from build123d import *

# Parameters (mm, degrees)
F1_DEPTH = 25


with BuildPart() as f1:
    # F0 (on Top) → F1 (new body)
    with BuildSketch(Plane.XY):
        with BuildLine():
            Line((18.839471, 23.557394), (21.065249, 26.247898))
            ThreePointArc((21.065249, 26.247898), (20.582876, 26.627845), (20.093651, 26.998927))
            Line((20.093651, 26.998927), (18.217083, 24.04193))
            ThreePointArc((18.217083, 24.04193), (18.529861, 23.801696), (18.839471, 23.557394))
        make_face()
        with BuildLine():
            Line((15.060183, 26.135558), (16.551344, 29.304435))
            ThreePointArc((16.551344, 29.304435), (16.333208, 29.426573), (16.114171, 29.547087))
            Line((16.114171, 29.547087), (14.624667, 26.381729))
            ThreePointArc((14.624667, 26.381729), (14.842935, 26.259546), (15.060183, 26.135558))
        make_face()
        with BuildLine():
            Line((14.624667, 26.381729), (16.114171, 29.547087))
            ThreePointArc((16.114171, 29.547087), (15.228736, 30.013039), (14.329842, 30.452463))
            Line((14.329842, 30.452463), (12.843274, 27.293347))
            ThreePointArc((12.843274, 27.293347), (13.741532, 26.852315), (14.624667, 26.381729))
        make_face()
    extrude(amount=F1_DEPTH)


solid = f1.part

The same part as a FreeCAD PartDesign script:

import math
import FreeCAD as App
import Part
import Sketcher
from FreeCAD import Vector
Q = App.Units.Quantity

doc = App.newDocument("Part")
body = doc.addObject("PartDesign::Body", "Body")
body.AllowCompound = True

sketch1 = body.newObject("Sketcher::SketchObject", "Sketch")
sketch1.AttachmentSupport = (doc.getObject("XY_Plane"), [""])
sketch1.MapMode = "FlatFace"
sketch1.addGeometry(Part.LineSegment(Vector(18.839471, 23.557394, 0), Vector(21.065249, 26.247898, 0)), False)
sketch1.addGeometry(Part.ArcOfCircle(Part.Circle(Vector(0.002538, 0.003286, 0), Vector(0, 0, 1), 33.651411), math.radians(51.251084), math.radians(53.342069)), False)
sketch1.addGeometry(Part.LineSegment(Vector(20.093651, 26.998927, 0), Vector(18.217083, 24.04193, 0)), False)
sketch1.addGeometry(Part.ArcOfCircle(Part.Circle(Vector(-0.001712, -0.002166, 0), Vector(0, 0, 1), 30.16692), math.radians(51.349781), math.radians(52.847908)), False)
sketch1.addGeometry(Part.LineSegment(Vector(15.060183, 26.135558, 0), Vector(16.551344, 29.304435, 0)), False)
sketch1.addGeometry(Part.ArcOfCircle(Part.Circle(Vector(0.001096, 0.001889, 0), Vector(0, 0, 1), 33.653378), math.radians(60.541987), math.radians(61.393259)), False)
sketch1.addGeometry(Part.ArcOfCircle(Part.Circle(Vector(0.00067, 0.00133, 0), Vector(0, 0, 1), 33.654073), math.radians(61.393077), math.radians(64.800067)), False)
sketch1.addGeometry(Part.LineSegment(Vector(14.329842, 30.452463, 0), Vector(12.843274, 27.293347, 0)), False)
sketch1.addGeometry(Part.ArcOfCircle(Part.Circle(Vector(0.000403, 0.00077, 0), Vector(0, 0, 1), 30.16329), math.radians(60.99824), math.radians(64.800071)), False)
sketch1.addGeometry(Part.ArcOfCircle(Part.Circle(Vector(-0.007455, -0.013176, 0), Vector(0, 0, 1), 30.179298), math.radians(60.048242), math.radians(60.99803)), False)
sketch1.addConstraint(Sketcher.Constraint("Coincident", 0, 2, 1, 1))
sketch1.addConstraint(Sketcher.Constraint("Coincident", 1, 2, 2, 1))
sketch1.addConstraint(Sketcher.Constraint("Coincident", 2, 2, 3, 2))
sketch1.addConstraint(Sketcher.Constraint("Coincident", 3, 1, 0, 1))
sketch1.addConstraint(Sketcher.Constraint("Coincident", 4, 2, 5, 1))
sketch1.addConstraint(Sketcher.Constraint("Coincident", 5, 2, 6, 1))
sketch1.addConstraint(Sketcher.Constraint("Coincident", 6, 2, 7, 1))
sketch1.addConstraint(Sketcher.Constraint("Coincident", 7, 2, 8, 2))
sketch1.addConstraint(Sketcher.Constraint("Coincident", 8, 1, 9, 2))
sketch1.addConstraint(Sketcher.Constraint("Coincident", 9, 1, 4, 1))
sketch1.addConstraint(Sketcher.Constraint("Parallel", 4, 7))
sketch1.addConstraint(Sketcher.Constraint("Equal", 2, 4))
sketch1.addConstraint(Sketcher.Constraint("Angle", 0, Q("50.400006 deg")))
sketch1.addConstraint(Sketcher.Constraint("Angle", 2, Q("-122.400009 deg")))
sketch1.addConstraint(Sketcher.Constraint("Angle", 4, Q("64.79999 deg")))
sketch1.addConstraint(Sketcher.Constraint("Radius", 1, Q("33.651411 mm")))
sketch1.addConstraint(Sketcher.Constraint("Radius", 3, Q("30.16692 mm")))
sketch1.addConstraint(Sketcher.Constraint("Radius", 5, Q("33.653378 mm")))
sketch1.addConstraint(Sketcher.Constraint("Radius", 8, Q("30.16329 mm")))
sketch1.addConstraint(Sketcher.Constraint("Radius", 6, Q("33.654073 mm")))
sketch1.addConstraint(Sketcher.Constraint("Radius", 9, Q("30.179298 mm")))
sketch1.addConstraint(Sketcher.Constraint("DistanceY", 6, 3, 2, 2, Q("24.0406 mm")))
sketch1.addConstraint(Sketcher.Constraint("DistanceX", 5, 2, 3, 1, Q("2.7253 mm")))
sketch1.addConstraint(Sketcher.Constraint("DistanceY", 2, 2, 8, 1, Q("2.339799 mm")))
sketch1.addConstraint(Sketcher.Constraint("DistanceX", 9, 1, 2, 2, Q("3.1569 mm")))
sketch1.addConstraint(Sketcher.Constraint("Distance", 2, Q("3.502191 mm")))
sketch1.addConstraint(Sketcher.Constraint("DistanceX", 3, 3, -1, 1, Q("0.001712 mm")))
sketch1.addConstraint(Sketcher.Constraint("DistanceY", -1, 1, 5, 3, Q("0.001889 mm")))
sketch1.addConstraint(Sketcher.Constraint("DistanceX", -1, 1, 6, 3, Q("0.00067 mm")))
sketch1.addConstraint(Sketcher.Constraint("DistanceY", -1, 1, 6, 3, Q("0.00133 mm")))
sketch1.addConstraint(Sketcher.Constraint("DistanceY", -1, 1, 8, 3, Q("0.00077 mm")))
sketch1.addConstraint(Sketcher.Constraint("DistanceX", -1, 1, 0, 2, Q("21.065249 mm")))
sketch1.addConstraint(Sketcher.Constraint("DistanceX", -1, 1, 1, 2, Q("20.093651 mm")))
sketch1.addConstraint(Sketcher.Constraint("DistanceX", -1, 1, 6, 2, Q("14.329842 mm")))
sketch1.addConstraint(Sketcher.Constraint("DistanceX", 3, 3, 1, 3, Q("0.00425 mm")))
sketch1.addConstraint(Sketcher.Constraint("DistanceY", 9, 3, 3, 3, Q("0.01101 mm")))
pad1 = body.newObject("PartDesign::Pad", "Pad")
pad1.Profile = sketch1
pad1.Length = 25

doc.recompute()
